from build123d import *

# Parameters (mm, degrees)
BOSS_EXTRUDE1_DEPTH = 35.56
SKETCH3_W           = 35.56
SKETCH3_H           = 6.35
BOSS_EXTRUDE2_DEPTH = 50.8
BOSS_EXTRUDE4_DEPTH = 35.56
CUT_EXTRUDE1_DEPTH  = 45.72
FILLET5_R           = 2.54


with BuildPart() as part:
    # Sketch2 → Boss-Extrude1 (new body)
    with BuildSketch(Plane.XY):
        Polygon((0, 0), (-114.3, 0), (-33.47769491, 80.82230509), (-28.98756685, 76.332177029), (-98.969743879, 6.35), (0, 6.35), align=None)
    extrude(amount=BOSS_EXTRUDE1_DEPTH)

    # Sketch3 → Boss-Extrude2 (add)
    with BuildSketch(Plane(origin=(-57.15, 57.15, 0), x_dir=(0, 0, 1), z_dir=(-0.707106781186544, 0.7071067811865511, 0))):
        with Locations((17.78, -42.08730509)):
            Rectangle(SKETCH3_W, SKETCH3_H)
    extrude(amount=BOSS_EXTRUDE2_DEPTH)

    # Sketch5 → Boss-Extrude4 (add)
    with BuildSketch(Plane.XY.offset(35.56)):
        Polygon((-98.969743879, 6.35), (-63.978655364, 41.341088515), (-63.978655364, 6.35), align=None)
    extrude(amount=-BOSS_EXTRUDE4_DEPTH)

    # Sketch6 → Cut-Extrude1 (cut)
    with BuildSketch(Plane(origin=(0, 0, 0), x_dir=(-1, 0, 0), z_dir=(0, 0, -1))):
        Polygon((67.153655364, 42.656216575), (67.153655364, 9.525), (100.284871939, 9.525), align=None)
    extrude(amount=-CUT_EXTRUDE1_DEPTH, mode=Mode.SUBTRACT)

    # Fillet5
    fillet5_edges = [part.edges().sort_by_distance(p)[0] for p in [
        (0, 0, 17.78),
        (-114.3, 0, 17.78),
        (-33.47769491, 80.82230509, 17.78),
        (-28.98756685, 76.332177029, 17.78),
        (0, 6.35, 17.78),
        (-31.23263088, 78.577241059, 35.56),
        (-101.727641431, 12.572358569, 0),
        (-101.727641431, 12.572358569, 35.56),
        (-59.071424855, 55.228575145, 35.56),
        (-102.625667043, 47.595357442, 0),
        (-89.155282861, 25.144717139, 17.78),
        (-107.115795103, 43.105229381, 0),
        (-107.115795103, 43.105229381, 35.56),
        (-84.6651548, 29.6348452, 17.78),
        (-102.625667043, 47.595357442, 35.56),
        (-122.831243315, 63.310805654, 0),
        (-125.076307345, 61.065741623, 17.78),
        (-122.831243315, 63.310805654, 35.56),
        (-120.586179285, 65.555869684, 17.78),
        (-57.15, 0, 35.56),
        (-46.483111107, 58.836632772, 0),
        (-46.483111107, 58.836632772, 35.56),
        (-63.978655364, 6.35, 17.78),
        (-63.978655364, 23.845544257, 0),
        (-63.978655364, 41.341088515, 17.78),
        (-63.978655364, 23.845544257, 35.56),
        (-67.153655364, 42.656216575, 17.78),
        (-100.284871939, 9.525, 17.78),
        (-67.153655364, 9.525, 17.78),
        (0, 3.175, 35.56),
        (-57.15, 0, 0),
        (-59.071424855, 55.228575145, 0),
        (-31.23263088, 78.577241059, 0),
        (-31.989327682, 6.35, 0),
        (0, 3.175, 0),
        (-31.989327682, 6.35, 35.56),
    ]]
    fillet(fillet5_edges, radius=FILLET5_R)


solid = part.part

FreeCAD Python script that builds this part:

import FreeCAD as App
import Part
import Sketcher
Q = App.Units.Quantity


def edges_at(feature, points):
    """Names of the edges that pass closest to the given points."""
    edges = feature.Shape.Edges
    near = lambda p: min(range(len(edges)), key=lambda i: edges[i].distToShape(Part.Vertex(*p))[0])
    return sorted({f"Edge{near(p) + 1}" for p in points})

doc = App.newDocument("Part")
body = doc.addObject("PartDesign::Body", "Body")

# Sketch on XY plane
sketch1 = body.newObject("Sketcher::SketchObject", "Sketch")
sketch1.AttachmentSupport = (doc.getObject("XY_Plane"), [""])
sketch1.MapMode = "FlatFace"
sketch1.addGeometry([
    Part.LineSegment(App.Vector(-114, 0, 0), App.Vector(0, 0, 0)),  # 0
    Part.LineSegment(App.Vector(0, 0, 0), App.Vector(0, 6, 0)),  # 1
    Part.LineSegment(App.Vector(0, 6, 0), App.Vector(-99, 6, 0)),  # 2
    Part.LineSegment(App.Vector(-99, 6, 0), App.Vector(-29, 76, 0)),  # 3
    Part.LineSegment(App.Vector(-29, 76, 0), App.Vector(-33, 81, 0)),  # 4
    Part.LineSegment(App.Vector(-33, 81, 0), App.Vector(-114, 0, 0)),  # 5
], False)
sketch1.addConstraint([
    Sketcher.Constraint("Coincident", 0, 2, 1, 1),
    Sketcher.Constraint("Coincident", 1, 2, 2, 1),
    Sketcher.Constraint("Coincident", 2, 2, 3, 1),
    Sketcher.Constraint("Coincident", 3, 2, 4, 1),
    Sketcher.Constraint("Coincident", 4, 2, 5, 1),
    Sketcher.Constraint("Coincident", 5, 2, 0, 1),
    Sketcher.Constraint("Horizontal", 0),
    Sketcher.Constraint("Vertical", 1),
    Sketcher.Constraint("Horizontal", 2),
    Sketcher.Constraint("Coincident", 0, 2, -1, 1),
    Sketcher.Constraint("Perpendicular", 3, 4),
    Sketcher.Constraint("Perpendicular", 4, 5),
    Sketcher.Constraint("DistanceX", 0, 1, 0, 2, Q("4.5 in")),
    Sketcher.Constraint("Angle", 3, Q("45 deg")),
    Sketcher.Constraint("Distance", 5, Q("4.5 in")),
    Sketcher.Constraint("DistanceY", 1, 1, 1, 2, Q("0.25 in")),
    Sketcher.Constraint("Distance", 4, Q("0.25 in")),
])
pad1 = body.newObject("PartDesign::Pad", "Pad")
pad1.Profile = sketch1
pad1.Length = Q("1.4 in")

# Sketch on an angled plane
sketch2 = body.newObject("Sketcher::SketchObject", "Sketch001")
sketch2.Placement = App.Placement(App.Vector(-57.15, 57.15, 0), App.Rotation(App.Vector(0, 0, 1), App.Vector(0.707106781, 0.707106781, 0), App.Vector(-0.707106781, 0.707106781, 0), "ZXY"))
sketch2.addGeometry([
    Part.LineSegment(App.Vector(0, -39, 0), App.Vector(0, -45, 0)),
    Part.LineSegment(App.Vector(0, -45, 0), App.Vector(36, -45, 0)),
    Part.LineSegment(App.Vector(36, -45, 0), App.Vector(36, -39, 0)),
    Part.LineSegment(App.Vector(36, -39, 0), App.Vector(0, -39, 0)),
], False)
sketch2.addConstraint([
    Sketcher.Constraint("Coincident", 0, 2, 1, 1),
    Sketcher.Constraint("Coincident", 1, 2, 2, 1),
    Sketcher.Constraint("Coincident", 2, 2, 3, 1),
    Sketcher.Constraint("Coincident", 3, 2, 0, 1),
    Sketcher.Constraint("Vertical", 0),
    Sketcher.Constraint("Horizontal", 1),
    Sketcher.Constraint("Vertical", 2),
    Sketcher.Constraint("Horizontal", 3),
    Sketcher.Constraint("PointOnObject", 0, 2, -2),
    Sketcher.Constraint("DistanceX", 1, 1, 1, 2, Q("1.4 in")),
    Sketcher.Constraint("DistanceY", 0, 2, 0, 1, Q("0.25 in")),
    Sketcher.Constraint("DistanceY", 0, 2, -1, 1, 45.262305),
])
pad2 = body.newObject("PartDesign::Pad", "Pad001")
pad2.Profile = sketch2
pad2.Length = Q("2 in")

# Sketch on XY plane
sketch3 = body.newObject("Sketcher::SketchObject", "Sketch002")
sketch3.AttachmentSupport = (doc.getObject("XY_Plane"), [""])
sketch3.MapMode = "FlatFace"
sketch3.AttachmentOffset = App.Placement(App.Vector(0, 0, 1.4 * 25.4), App.Rotation())
sketch3.addGeometry([
    Part.LineSegment(App.Vector(-64, 41, 0), App.Vector(-99, 6, 0)),
    Part.LineSegment(App.Vector(-99, 6, 0), App.Vector(-64, 6, 0)),
    Part.LineSegment(App.Vector(-64, 6, 0), App.Vector(-64, 41, 0)),
], False)
sketch3.addConstraint([
    Sketcher.Constraint("Coincident", 0, 2, 1, 1),
    Sketcher.Constraint("Coincident", 1, 2, 2, 1),
    Sketcher.Constraint("Coincident", 2, 2, 0, 1),
    Sketcher.Constraint("Horizontal", 1),
    Sketcher.Constraint("Vertical", 2),
    Sketcher.Constraint("Equal", 1, 2),
    Sketcher.Constraint("DistanceY", -1, 1, 0, 2, Q("0.25 in")),
    Sketcher.Constraint("DistanceX", 1, 1, 1, 2, 34.991089),
    Sketcher.Constraint("DistanceX", 0, 2, -1, 1, 98.969744),
])
pad3 = body.newObject("PartDesign::Pad", "Pad002")
pad3.Profile = sketch3
pad3.Length = Q("1.4 in")
pad3.Reversed = True

# Sketch on XY plane
sketch4 = body.newObject("Sketcher::SketchObject", "Sketch003")
sketch4.AttachmentSupport = (doc.getObject("XY_Plane"), [""])
sketch4.MapMode = "FlatFace"
sketch4.addGeometry([
    Part.LineSegment(App.Vector(-67, 43, 0), App.Vector(-67, 10, 0)),
    Part.LineSegment(App.Vector(-67, 10, 0), App.Vector(-100, 10, 0)),
    Part.LineSegment(App.Vector(-100, 10, 0), App.Vector(-67, 43, 0)),
], False)
sketch4.addConstraint([
    Sketcher.Constraint("Coincident", 0, 2, 1, 1),
    Sketcher.Constraint("Coincident", 1, 2, 2, 1),
    Sketcher.Constraint("Coincident", 2, 2, 0, 1),
    Sketcher.Constraint("Vertical", 0),
    Sketcher.Constraint("Horizontal", 1),
    Sketcher.Constraint("Equal", 1, 0),
    Sketcher.Constraint("DistanceY", -1, 1, 0, 2, Q("0.375 in")),
    Sketcher.Constraint("DistanceX", 1, 2, 1, 1, 33.131217),
    Sketcher.Constraint("DistanceX", 1, 2, -1, 1, 100.284872),
])
pocket1 = body.newObject("PartDesign::Pocket", "Pocket")
pocket1.Profile = sketch4
pocket1.Length = Q("1.8 in")
pocket1.Reversed = True
doc.recompute()

fillet = body.newObject("PartDesign::Fillet", "Fillet")
fillet.Base = (pocket1, edges_at(pocket1, [
    (0, 0, 17.78),
    (-114.3, 0, 17.78),
    (-33.478, 80.822, 17.78),
    (-28.988, 76.332, 17.78),
    (0, 6.35, 17.78),
    (-31.233, 78.577, 35.56),
    (-101.728, 12.572, 0),
    (-101.728, 12.572, 35.56),
    (-59.071, 55.229, 35.56),
    (-102.626, 47.595, 0),
    (-89.155, 25.145, 17.78),
    (-107.116, 43.105, 0),
    (-107.116, 43.105, 35.56),
    (-84.665, 29.635, 17.78),
    (-102.626, 47.595, 35.56),
    (-122.831, 63.311, 0),
    (-125.076, 61.066, 17.78),
    (-122.831, 63.311, 35.56),
    (-120.586, 65.556, 17.78),
    (-57.15, 0, 35.56),
    (-46.483, 58.837, 0),
    (-46.483, 58.837, 35.56),
    (-63.979, 6.35, 17.78),
    (-63.979, 23.846, 0),
    (-63.979, 41.341, 17.78),
    (-63.979, 23.846, 35.56),
    (-67.154, 42.656, 17.78),
    (-100.285, 9.525, 17.78),
    (-67.154, 9.525, 17.78),
    (0, 3.175, 35.56),
    (-57.15, 0, 0),
    (-59.071, 55.229, 0),
    (-31.233, 78.577, 0),
    (-31.989, 6.35, 0),
    (0, 3.175, 0),
    (-31.989, 6.35, 35.56),
]))
fillet.Radius = Q("0.1 in")

doc.recompute()
